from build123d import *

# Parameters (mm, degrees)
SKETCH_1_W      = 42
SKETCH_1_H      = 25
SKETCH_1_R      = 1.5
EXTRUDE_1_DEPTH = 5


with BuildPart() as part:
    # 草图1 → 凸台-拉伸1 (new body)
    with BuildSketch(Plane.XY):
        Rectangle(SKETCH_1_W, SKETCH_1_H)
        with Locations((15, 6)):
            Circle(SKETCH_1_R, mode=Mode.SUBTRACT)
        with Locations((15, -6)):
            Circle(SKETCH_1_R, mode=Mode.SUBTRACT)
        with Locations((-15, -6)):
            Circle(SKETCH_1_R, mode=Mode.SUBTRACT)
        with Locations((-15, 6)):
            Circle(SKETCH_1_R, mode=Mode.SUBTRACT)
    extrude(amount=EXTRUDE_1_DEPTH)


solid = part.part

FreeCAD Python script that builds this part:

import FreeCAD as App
import Part
import Sketcher
from FreeCAD import Vector
Q = App.Units.Quantity

doc = App.newDocument("Part")
body = doc.addObject("PartDesign::Body", "Body")

# Sketch on XY plane
sketch1 = doc.addObject("Sketcher::SketchObject", "Sketch")
body.addObject(sketch1)
sketch1.AttachmentSupport = (doc.XY_Plane, [""])
sketch1.MapMode = "FlatFace"
sketch1.addGeometry(Part.LineSegment(Vector(-21, 12.5, 0), Vector(-21, -12.5, 0)), False)
sketch1.addGeometry(Part.LineSegment(Vector(-21, -12.5, 0), Vector(21, -12.5, 0)), False)
sketch1.addGeometry(Part.LineSegment(Vector(21, -12.5, 0), Vector(21, 12.5, 0)), False)
sketch1.addGeometry(Part.LineSegment(Vector(21, 12.5, 0), Vector(-21, 12.5, 0)), False)
sketch1.addGeometry(Part.Circle(Vector(-15, -6, 0), Vector(0, 0, 1), 1.5), False)
sketch1.addGeometry(Part.Circle(Vector(15, -6, 0), Vector(0, 0, 1), 1.5), False)
sketch1.addGeometry(Part.Circle(Vector(-15, 6, 0), Vector(0, 0, 1), 1.5), False)
sketch1.addGeometry(Part.Circle(Vector(15, 6, 0), Vector(0, 0, 1), 1.5), False)
sketch1.addConstraint(Sketcher.Constraint("Coincident", 0, 2, 1, 1))
sketch1.addConstraint(Sketcher.Constraint("Coincident", 1, 2, 2, 1))
sketch1.addConstraint(Sketcher.Constraint("Coincident", 2, 2, 3, 1))
sketch1.addConstraint(Sketcher.Constraint("Coincident", 3, 2, 0, 1))
sketch1.addConstraint(Sketcher.Constraint("Vertical", 0))
sketch1.addConstraint(Sketcher.Constraint("Horizontal", 1))
sketch1.addConstraint(Sketcher.Constraint("Vertical", 2))
sketch1.addConstraint(Sketcher.Constraint("Horizontal", 3))
sketch1.addConstraint(Sketcher.Constraint("Equal", 4, 5))
sketch1.addConstraint(Sketcher.Constraint("Equal", 5, 6))
sketch1.addConstraint(Sketcher.Constraint("Equal", 6, 7))
sketch1.addConstraint(Sketcher.Constraint("Symmetric", 5, 3, 6, 3, -1, 1))
sketch1.addConstraint(Sketcher.Constraint("Symmetric", 4, 3, 7, 3, -1, 1))
sketch1.addConstraint(Sketcher.Constraint("Symmetric", 0, 2, 2, 2, -1, 1))
sketch1.addConstraint(Sketcher.Constraint("Symmetric", 4, 3, 5, 3, -2))
sketch1.addConstraint(Sketcher.Constraint("Diameter", 4, Q("3 mm")))
sketch1.addConstraint(Sketcher.Constraint("DistanceX", 1, 1, 1, 2, Q("42 mm")))
sketch1.addConstraint(Sketcher.Constraint("DistanceY", 0, 2, 0, 1, Q("25 mm")))
sketch1.addConstraint(Sketcher.Constraint("DistanceX", 4, 3, -1, 1, Q("15 mm")))
sketch1.addConstraint(Sketcher.Constraint("DistanceY", 4, 3, -1, 1, Q("6 mm")))
pad1 = doc.addObject("PartDesign::Pad", "Pad")
body.addObject(pad1)
pad1.Profile = sketch1
pad1.Length = 5

doc.recompute()
